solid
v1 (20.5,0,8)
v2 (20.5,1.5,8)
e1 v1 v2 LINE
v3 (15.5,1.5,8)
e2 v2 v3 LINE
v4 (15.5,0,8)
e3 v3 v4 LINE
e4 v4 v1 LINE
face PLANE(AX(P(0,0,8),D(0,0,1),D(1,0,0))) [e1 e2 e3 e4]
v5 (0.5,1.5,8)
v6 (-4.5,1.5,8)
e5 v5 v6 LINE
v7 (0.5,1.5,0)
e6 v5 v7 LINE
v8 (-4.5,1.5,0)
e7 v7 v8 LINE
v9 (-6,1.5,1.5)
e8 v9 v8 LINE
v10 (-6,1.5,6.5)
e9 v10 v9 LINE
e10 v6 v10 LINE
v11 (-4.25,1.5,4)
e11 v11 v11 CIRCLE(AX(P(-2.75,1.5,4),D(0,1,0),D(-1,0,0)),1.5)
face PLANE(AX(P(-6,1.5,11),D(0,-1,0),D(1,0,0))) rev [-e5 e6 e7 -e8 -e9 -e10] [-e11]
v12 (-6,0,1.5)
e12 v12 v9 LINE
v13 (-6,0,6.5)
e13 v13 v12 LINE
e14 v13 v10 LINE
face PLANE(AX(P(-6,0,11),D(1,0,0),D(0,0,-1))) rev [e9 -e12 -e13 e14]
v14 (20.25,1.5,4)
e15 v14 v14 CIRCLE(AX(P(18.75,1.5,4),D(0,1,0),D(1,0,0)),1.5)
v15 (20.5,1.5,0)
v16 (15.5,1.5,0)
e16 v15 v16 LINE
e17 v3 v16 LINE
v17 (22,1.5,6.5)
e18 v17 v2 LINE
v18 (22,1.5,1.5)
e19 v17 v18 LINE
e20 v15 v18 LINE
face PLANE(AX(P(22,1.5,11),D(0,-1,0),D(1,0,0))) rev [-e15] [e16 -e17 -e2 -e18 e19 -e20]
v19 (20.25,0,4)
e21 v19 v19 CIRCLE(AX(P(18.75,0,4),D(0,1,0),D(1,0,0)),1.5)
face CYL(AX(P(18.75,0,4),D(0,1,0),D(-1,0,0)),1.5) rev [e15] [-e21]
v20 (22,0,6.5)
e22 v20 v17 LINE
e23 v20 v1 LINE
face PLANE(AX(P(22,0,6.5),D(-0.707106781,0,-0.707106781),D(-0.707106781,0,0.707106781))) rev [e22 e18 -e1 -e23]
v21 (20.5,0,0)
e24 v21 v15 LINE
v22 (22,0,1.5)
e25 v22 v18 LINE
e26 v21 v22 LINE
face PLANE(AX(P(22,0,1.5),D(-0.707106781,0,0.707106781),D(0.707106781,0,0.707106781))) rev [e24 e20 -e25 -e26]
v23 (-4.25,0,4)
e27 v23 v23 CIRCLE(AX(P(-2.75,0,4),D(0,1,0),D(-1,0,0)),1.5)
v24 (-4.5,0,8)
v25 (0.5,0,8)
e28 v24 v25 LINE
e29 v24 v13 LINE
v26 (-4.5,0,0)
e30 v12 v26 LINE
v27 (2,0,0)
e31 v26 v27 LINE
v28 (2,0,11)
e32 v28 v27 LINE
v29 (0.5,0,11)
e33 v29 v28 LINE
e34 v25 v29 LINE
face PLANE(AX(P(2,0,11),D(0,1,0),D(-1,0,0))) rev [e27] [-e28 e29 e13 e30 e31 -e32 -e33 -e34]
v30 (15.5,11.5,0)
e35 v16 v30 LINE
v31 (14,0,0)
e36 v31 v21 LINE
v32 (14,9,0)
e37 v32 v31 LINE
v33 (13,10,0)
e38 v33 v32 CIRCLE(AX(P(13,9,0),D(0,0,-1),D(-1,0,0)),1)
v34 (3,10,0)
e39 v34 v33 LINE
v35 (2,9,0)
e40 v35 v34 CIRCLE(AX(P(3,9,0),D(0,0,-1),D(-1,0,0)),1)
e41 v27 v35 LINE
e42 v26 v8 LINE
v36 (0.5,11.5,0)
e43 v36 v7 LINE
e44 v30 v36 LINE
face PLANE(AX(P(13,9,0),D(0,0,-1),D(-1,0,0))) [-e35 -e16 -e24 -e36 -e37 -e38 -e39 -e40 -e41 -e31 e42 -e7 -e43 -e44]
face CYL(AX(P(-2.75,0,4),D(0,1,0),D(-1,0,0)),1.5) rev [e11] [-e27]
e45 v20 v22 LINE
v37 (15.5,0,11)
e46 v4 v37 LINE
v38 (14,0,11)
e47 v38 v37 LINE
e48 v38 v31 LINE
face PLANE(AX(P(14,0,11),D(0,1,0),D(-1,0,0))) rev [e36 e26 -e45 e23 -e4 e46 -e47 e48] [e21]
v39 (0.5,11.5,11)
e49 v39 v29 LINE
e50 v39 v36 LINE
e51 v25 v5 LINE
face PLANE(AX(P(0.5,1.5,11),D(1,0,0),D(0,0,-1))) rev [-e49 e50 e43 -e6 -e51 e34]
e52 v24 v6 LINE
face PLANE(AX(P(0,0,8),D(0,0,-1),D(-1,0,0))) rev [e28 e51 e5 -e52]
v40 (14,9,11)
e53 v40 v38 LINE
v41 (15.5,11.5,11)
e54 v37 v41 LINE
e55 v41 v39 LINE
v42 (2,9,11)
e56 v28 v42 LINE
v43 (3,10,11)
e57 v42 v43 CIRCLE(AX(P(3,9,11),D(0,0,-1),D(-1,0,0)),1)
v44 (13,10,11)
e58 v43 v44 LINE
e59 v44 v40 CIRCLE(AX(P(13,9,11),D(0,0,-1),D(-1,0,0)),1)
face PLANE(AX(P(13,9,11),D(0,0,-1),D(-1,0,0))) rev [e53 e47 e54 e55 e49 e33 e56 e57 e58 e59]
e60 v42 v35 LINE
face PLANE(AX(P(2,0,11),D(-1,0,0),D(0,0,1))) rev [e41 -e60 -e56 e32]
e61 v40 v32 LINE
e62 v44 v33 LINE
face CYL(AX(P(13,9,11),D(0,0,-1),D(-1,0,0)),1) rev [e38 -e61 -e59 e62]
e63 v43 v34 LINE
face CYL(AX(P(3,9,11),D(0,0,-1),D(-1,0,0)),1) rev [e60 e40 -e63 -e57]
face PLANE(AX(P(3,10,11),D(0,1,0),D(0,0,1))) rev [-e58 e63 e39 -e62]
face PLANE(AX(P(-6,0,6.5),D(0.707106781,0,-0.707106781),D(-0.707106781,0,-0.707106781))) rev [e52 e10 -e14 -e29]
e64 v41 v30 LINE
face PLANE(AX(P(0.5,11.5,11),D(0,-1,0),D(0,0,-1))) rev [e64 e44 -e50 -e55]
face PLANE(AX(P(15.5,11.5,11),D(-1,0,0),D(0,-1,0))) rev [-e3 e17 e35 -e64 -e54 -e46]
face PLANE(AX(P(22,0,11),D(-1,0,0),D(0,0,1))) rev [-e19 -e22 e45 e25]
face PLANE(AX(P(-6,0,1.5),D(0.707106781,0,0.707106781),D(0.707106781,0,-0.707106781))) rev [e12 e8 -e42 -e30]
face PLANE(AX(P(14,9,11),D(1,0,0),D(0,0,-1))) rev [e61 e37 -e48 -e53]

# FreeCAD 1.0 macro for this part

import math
import FreeCAD as App
import Part
import Sketcher
Q = App.Units.Quantity

doc = App.newDocument("Part")
body = doc.addObject("PartDesign::Body", "Body")

sketch1 = body.newObject("Sketcher::SketchObject", "Sketch")
sketch1.AttachmentSupport = (doc.getObject("XY_Plane"), [""])
sketch1.MapMode = "FlatFace"
sketch1.addGeometry([
    Part.LineSegment(App.Vector(0.5, 11.5, 0), App.Vector(0.5, 1.5, 0)),
    Part.LineSegment(App.Vector(0.5, 1.5, 0), App.Vector(-6, 1.5, 0)),
    Part.LineSegment(App.Vector(-6, 1.5, 0), App.Vector(-6, 0, 0)),
    Part.LineSegment(App.Vector(-6, 0, 0), App.Vector(2, 0, 0)),
    Part.LineSegment(App.Vector(2, 0, 0), App.Vector(2, 9, 0)),
    Part.ArcOfCircle(Part.Circle(App.Vector(3, 9, 0), App.Vector(0, 0, 1), 1), math.radians(90), math.radians(180)),
    Part.LineSegment(App.Vector(3, 10, 0), App.Vector(13, 10, 0)),
    Part.ArcOfCircle(Part.Circle(App.Vector(13, 9, 0), App.Vector(0, 0, 1), 1), math.radians(0), math.radians(90)),
    Part.LineSegment(App.Vector(14, 9, 0), App.Vector(14, 0, 0)),
    Part.LineSegment(App.Vector(14, 0, 0), App.Vector(22, 0, 0)),
    Part.LineSegment(App.Vector(22, 0, 0), App.Vector(22, 1.5, 0)),
    Part.LineSegment(App.Vector(22, 1.5, 0), App.Vector(15.5, 1.5, 0)),
    Part.LineSegment(App.Vector(15.5, 1.5, 0), App.Vector(15.5, 11.5, 0)),
    Part.LineSegment(App.Vector(15.5, 11.5, 0), App.Vector(0.5, 11.5, 0)),
], False)
sketch1.addConstraint([
    Sketcher.Constraint("Coincident", 0, 2, 1, 1),
    Sketcher.Constraint("Coincident", 1, 2, 2, 1),
    Sketcher.Constraint("Coincident", 2, 2, 3, 1),
    Sketcher.Constraint("Coincident", 3, 2, 4, 1),
    Sketcher.Constraint("Tangent", 4, 2, 5, 2),
    Sketcher.Constraint("Tangent", 5, 1, 6, 1),
    Sketcher.Constraint("Tangent", 6, 2, 7, 2),
    Sketcher.Constraint("Tangent", 7, 1, 8, 1),
    Sketcher.Constraint("Coincident", 8, 2, 9, 1),
    Sketcher.Constraint("Coincident", 9, 2, 10, 1),
    Sketcher.Constraint("Coincident", 10, 2, 11, 1),
    Sketcher.Constraint("Coincident", 11, 2, 12, 1),
    Sketcher.Constraint("Coincident", 12, 2, 13, 1),
    Sketcher.Constraint("Coincident", 13, 2, 0, 1),
    Sketcher.Constraint("Vertical", 0),
    Sketcher.Constraint("Horizontal", 1),
    Sketcher.Constraint("Vertical", 2),
    Sketcher.Constraint("Horizontal", 3),
    Sketcher.Constraint("Vertical", 4),
    Sketcher.Constraint("Horizontal", 6),
    Sketcher.Constraint("Vertical", 8),
    Sketcher.Constraint("Horizontal", 9),
    Sketcher.Constraint("Vertical", 10),
    Sketcher.Constraint("Horizontal", 11),
    Sketcher.Constraint("Vertical", 12),
    Sketcher.Constraint("Horizontal", 13),
    Sketcher.Constraint("Equal", 5, 7),
    Sketcher.Constraint("PointOnObject", 2, 2, -1),
    Sketcher.Constraint("PointOnObject", 8, 2, -1),
    Sketcher.Constraint("Horizontal", 1, 2, 10, 2),
    Sketcher.Constraint("Equal", 3, 9),
    Sketcher.Constraint("Equal", 1, 11),
    Sketcher.Constraint("Equal", 6, 0),
    Sketcher.Constraint("Radius", 5, Q("1 mm")),
    Sketcher.Constraint("DistanceX", 3, 1, 3, 2, Q("8 mm")),
    Sketcher.Constraint("DistanceX", 6, 1, 6, 2, Q("10 mm")),
    Sketcher.Constraint("DistanceX", 13, 2, 13, 1, Q("15 mm")),
    Sketcher.Constraint("DistanceY", 4, 1, 4, 2, Q("9 mm")),
    Sketcher.Constraint("DistanceY", 2, 2, 2, 1, Q("1.5 mm")),
    Sketcher.Constraint("DistanceX", -1, 1, 5, 3, Q("3 mm")),
])
pad1 = body.newObject("PartDesign::Pad", "Pad")
pad1.Profile = sketch1
pad1.Length = 11

sketch2 = body.newObject("Sketcher::SketchObject", "Sketch001")
sketch2.AttachmentSupport = (doc.getObject("XY_Plane"), [""])
sketch2.MapMode = "FlatFace"
sketch2.AttachmentOffset = App.Placement(App.Vector(0, 0, 11), App.Rotation())
sketch2.addGeometry([
    Part.LineSegment(App.Vector(-6, 1.5, 0), App.Vector(-6, 0, 0)),
    Part.LineSegment(App.Vector(-6, 0, 0), App.Vector(0.5, 0, 0)),
    Part.LineSegment(App.Vector(0.5, 0, 0), App.Vector(0.5, 1.5, 0)),
    Part.LineSegment(App.Vector(0.5, 1.5, 0), App.Vector(-6, 1.5, 0)),
    Part.LineSegment(App.Vector(15.5, 1.5, 0), App.Vector(15.5, 0, 0)),
    Part.LineSegment(App.Vector(15.5, 0, 0), App.Vector(22, 0, 0)),
    Part.LineSegment(App.Vector(22, 0, 0), App.Vector(22, 1.5, 0)),
    Part.LineSegment(App.Vector(22, 1.5, 0), App.Vector(15.5, 1.5, 0)),
], False)
sketch2.addConstraint([
    Sketcher.Constraint("Coincident", 0, 2, 1, 1),
    Sketcher.Constraint("Coincident", 1, 2, 2, 1),
    Sketcher.Constraint("Coincident", 2, 2, 3, 1),
    Sketcher.Constraint("Coincident", 3, 2, 0, 1),
    Sketcher.Constraint("Coincident", 4, 2, 5, 1),
    Sketcher.Constraint("Coincident", 5, 2, 6, 1),
    Sketcher.Constraint("Coincident", 6, 2, 7, 1),
    Sketcher.Constraint("Coincident", 7, 2, 4, 1),
    Sketcher.Constraint("Vertical", 0),
    Sketcher.Constraint("Horizontal", 1),
    Sketcher.Constraint("Vertical", 2),
    Sketcher.Constraint("Horizontal", 3),
    Sketcher.Constraint("Vertical", 4),
    Sketcher.Constraint("Horizontal", 5),
    Sketcher.Constraint("Vertical", 6),
    Sketcher.Constraint("Horizontal", 7),
    Sketcher.Constraint("PointOnObject", 0, 2, -1),
    Sketcher.Constraint("PointOnObject", 4, 2, -1),
    Sketcher.Constraint("Horizontal", 3, 2, 6, 2),
    Sketcher.Constraint("Equal", 3, 5),
    Sketcher.Constraint("DistanceX", 1, 1, 1, 2, Q("6.5 mm")),
    Sketcher.Constraint("DistanceY", 0, 2, 0, 1, Q("1.5 mm")),
    Sketcher.Constraint("DistanceX", 0, 2, -1, 1, Q("6 mm")),
    Sketcher.Constraint("DistanceX", -1, 1, 5, 2, Q("22 mm")),
])
pocket1 = body.newObject("PartDesign::Pocket", "Pocket")
pocket1.Profile = sketch2
pocket1.Length = 3

sketch3 = body.newObject("Sketcher::SketchObject", "Sketch002")
sketch3.AttachmentSupport = (doc.getObject("XZ_Plane"), [""])
sketch3.MapMode = "FlatFace"
sketch3.AttachmentOffset = App.Placement(App.Vector(0, 0, -1.5), App.Rotation())
sketch3.addGeometry([
    Part.Circle(App.Vector(-2.75, 4, 0), App.Vector(0, 0, 1), 1.5),
    Part.Circle(App.Vector(18.75, 4, 0), App.Vector(0, 0, 1), 1.5),
    Part.LineSegment(App.Vector(-6, 1.5, 0), App.Vector(-4.5, 0, 0)),
    Part.LineSegment(App.Vector(-4.5, 0, 0), App.Vector(-6, 0, 0)),
    Part.LineSegment(App.Vector(-6, 0, 0), App.Vector(-6, 1.5, 0)),
    Part.LineSegment(App.Vector(22, 0, 0), App.Vector(20.5, 0, 0)),
    Part.LineSegment(App.Vector(20.5, 0, 0), App.Vector(22, 1.5, 0)),
    Part.LineSegment(App.Vector(22, 1.5, 0), App.Vector(22, 0, 0)),
    Part.LineSegment(App.Vector(22, 6.5, 0), App.Vector(20.5, 8, 0)),
    Part.LineSegment(App.Vector(20.5, 8, 0), App.Vector(22, 8, 0)),
    Part.LineSegment(App.Vector(22, 8, 0), App.Vector(22, 6.5, 0)),
    Part.LineSegment(App.Vector(-6, 8, 0), App.Vector(-4.5, 8, 0)),
    Part.LineSegment(App.Vector(-4.5, 8, 0), App.Vector(-6, 6.5, 0)),
    Part.LineSegment(App.Vector(-6, 6.5, 0), App.Vector(-6, 8, 0)),
], False)
sketch3.addConstraint([
    Sketcher.Constraint("Coincident", 2, 2, 3, 1),
    Sketcher.Constraint("Coincident", 3, 2, 4, 1),
    Sketcher.Constraint("Coincident", 4, 2, 2, 1),
    Sketcher.Constraint("Coincident", 5, 2, 6, 1),
    Sketcher.Constraint("Coincident", 6, 2, 7, 1),
    Sketcher.Constraint("Coincident", 7, 2, 5, 1),
    Sketcher.Constraint("Coincident", 8, 2, 9, 1),
    Sketcher.Constraint("Coincident", 9, 2, 10, 1),
    Sketcher.Constraint("Coincident", 10, 2, 8, 1),
    Sketcher.Constraint("Coincident", 11, 2, 12, 1),
    Sketcher.Constraint("Coincident", 12, 2, 13, 1),
    Sketcher.Constraint("Coincident", 13, 2, 11, 1),
    Sketcher.Constraint("Horizontal", 3),
    Sketcher.Constraint("Vertical", 4),
    Sketcher.Constraint("Horizontal", 5),
    Sketcher.Constraint("Vertical", 7),
    Sketcher.Constraint("Horizontal", 9),
    Sketcher.Constraint("Vertical", 10),
    Sketcher.Constraint("Horizontal", 11),
    Sketcher.Constraint("Vertical", 13),
    Sketcher.Constraint("Equal", 0, 1),
    Sketcher.Constraint("PointOnObject", 2, 2, -1),
    Sketcher.Constraint("PointOnObject", 5, 2, -1),
    Sketcher.Constraint("Perpendicular", 2, 6),
    Sketcher.Constraint("Perpendicular", 6, 8),
    Sketcher.Constraint("Perpendicular", 8, 12),
    Sketcher.Constraint("Horizontal", 0, 3, 1, 3),
    Sketcher.Constraint("Horizontal", 4, 2, 6, 2),
    Sketcher.Constraint("Horizontal", 9, 2, 11, 2),
    Sketcher.Constraint("Horizontal", 10, 2, 12, 2),
    Sketcher.Constraint("Vertical", 5, 2, 8, 2),
    Sketcher.Constraint("Vertical", 7, 2, 9, 2),
    Sketcher.Constraint("Vertical", 2, 2, 11, 2),
    Sketcher.Constraint("Vertical", 4, 2, 12, 2),
    Sketcher.Constraint("Diameter", 0, Q("3 mm")),
    Sketcher.Constraint("DistanceX", 3, 2, 3, 1, Q("1.5 mm")),
    Sketcher.Constraint("DistanceY", -1, 1, 0, 3, Q("4 mm")),
    Sketcher.Constraint("DistanceX", 3, 2, -1, 1, Q("6 mm")),
    Sketcher.Constraint("DistanceX", -1, 1, 6, 2, Q("22 mm")),
    Sketcher.Constraint("DistanceY", -1, 1, 8, 2, Q("8 mm")),
    Sketcher.Constraint("DistanceX", 0, 3, 1, 3, Q("21.5 mm")),
    Sketcher.Constraint("DistanceX", 0, 3, -1, 1, Q("2.75 mm")),
])
pocket2 = body.newObject("PartDesign::Pocket", "Pocket001")
pocket2.Profile = sketch3
pocket2.Type = "ThroughAll"
pocket2.Reversed = True

doc.recompute()
